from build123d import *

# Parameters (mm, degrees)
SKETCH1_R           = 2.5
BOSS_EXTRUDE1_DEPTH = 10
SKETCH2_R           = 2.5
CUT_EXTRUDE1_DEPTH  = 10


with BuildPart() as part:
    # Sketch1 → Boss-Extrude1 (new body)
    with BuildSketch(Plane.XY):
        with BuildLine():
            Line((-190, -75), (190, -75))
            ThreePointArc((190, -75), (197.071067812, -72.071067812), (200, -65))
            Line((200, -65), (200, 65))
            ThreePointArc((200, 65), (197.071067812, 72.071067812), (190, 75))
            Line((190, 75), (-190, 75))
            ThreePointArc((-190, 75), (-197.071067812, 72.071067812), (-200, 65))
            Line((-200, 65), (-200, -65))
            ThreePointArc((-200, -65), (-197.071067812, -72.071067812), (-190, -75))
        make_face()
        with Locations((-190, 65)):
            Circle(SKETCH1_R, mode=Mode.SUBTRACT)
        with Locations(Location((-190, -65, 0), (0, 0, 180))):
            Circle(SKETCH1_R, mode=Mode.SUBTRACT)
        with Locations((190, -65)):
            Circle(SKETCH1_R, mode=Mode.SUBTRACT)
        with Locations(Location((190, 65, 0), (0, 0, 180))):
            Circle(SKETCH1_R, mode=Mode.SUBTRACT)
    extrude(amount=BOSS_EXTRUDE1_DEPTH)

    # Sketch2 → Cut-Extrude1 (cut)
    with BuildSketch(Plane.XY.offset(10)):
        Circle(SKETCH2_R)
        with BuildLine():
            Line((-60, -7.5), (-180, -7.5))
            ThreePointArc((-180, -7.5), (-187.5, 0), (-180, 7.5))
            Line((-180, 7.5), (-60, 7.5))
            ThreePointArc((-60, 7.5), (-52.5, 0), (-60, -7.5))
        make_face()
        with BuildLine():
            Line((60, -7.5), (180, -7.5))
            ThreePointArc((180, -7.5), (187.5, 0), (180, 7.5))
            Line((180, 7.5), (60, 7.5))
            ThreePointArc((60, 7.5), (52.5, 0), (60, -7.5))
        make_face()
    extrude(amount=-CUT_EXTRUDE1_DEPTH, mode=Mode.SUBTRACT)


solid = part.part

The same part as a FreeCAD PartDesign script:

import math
import FreeCAD as App
import Part
import Sketcher
Q = App.Units.Quantity

doc = App.newDocument("Part")
params = doc.addObject("Spreadsheet::Sheet", "Params")
for row, (alias, value) in enumerate([
    ("sketch1_diameter", "5 mm"),
    ("sketch1_radius", "10 mm"),
    ("sketch1_width", "380 mm"),
    ("sketch1_height", "130 mm"),
    ("pad1_length", "10 mm"),
    ("sketch2_diameter", "5 mm"),
    ("sketch2_radius", "7.5 mm"),
    ("sketch2_width", "120 mm"),
    ("pocket1_length", "10 mm"),
], start=1):
    params.set(f"A{row}", alias)
    params.set(f"B{row}", "=" + value)
    params.setAlias(f"B{row}", alias)

body = doc.addObject("PartDesign::Body", "Body")

# Sketch on XY plane
sketch1 = body.newObject("Sketcher::SketchObject", "Sketch")
sketch1.AttachmentSupport = (doc.getObject("XY_Plane"), [""])
sketch1.MapMode = "FlatFace"
sketch1.addGeometry([
    Part.LineSegment(App.Vector(-190, -75, 0), App.Vector(190, -75, 0)),  # 0
    Part.ArcOfCircle(Part.Circle(App.Vector(190, -65, 0), App.Vector(0, 0, 1), 10), math.radians(-90), math.radians(0)),  # 1
    Part.LineSegment(App.Vector(200, -65, 0), App.Vector(200, 65, 0)),  # 2
    Part.ArcOfCircle(Part.Circle(App.Vector(190, 65, 0), App.Vector(0, 0, 1), 10), math.radians(0), math.radians(90)),  # 3
    Part.LineSegment(App.Vector(190, 75, 0), App.Vector(-190, 75, 0)),  # 4
    Part.ArcOfCircle(Part.Circle(App.Vector(-190, 65, 0), App.Vector(0, 0, 1), 10), math.radians(90), math.radians(180)),  # 5
    Part.LineSegment(App.Vector(-200, 65, 0), App.Vector(-200, -65, 0)),  # 6
    Part.ArcOfCircle(Part.Circle(App.Vector(-190, -65, 0), App.Vector(0, 0, 1), 10), math.radians(180), math.radians(270)),  # 7
    Part.Circle(App.Vector(-190, -65, 0), App.Vector(0, 0, 1), 2.5),  # 8
    Part.Circle(App.Vector(190, -65, 0), App.Vector(0, 0, 1), 2.5),  # 9
    Part.Circle(App.Vector(-190, 65, 0), App.Vector(0, 0, 1), 2.5),  # 10
    Part.Circle(App.Vector(190, 65, 0), App.Vector(0, 0, 1), 2.5),  # 11
], False)
sketch1.addConstraint([
    Sketcher.Constraint("Tangent", 0, 2, 1, 1),
    Sketcher.Constraint("Tangent", 1, 2, 2, 1),
    Sketcher.Constraint("Tangent", 2, 2, 3, 1),
    Sketcher.Constraint("Tangent", 3, 2, 4, 1),
    Sketcher.Constraint("Tangent", 4, 2, 5, 1),
    Sketcher.Constraint("Tangent", 5, 2, 6, 1),
    Sketcher.Constraint("Tangent", 6, 2, 7, 1),
    Sketcher.Constraint("Tangent", 7, 2, 0, 1),
    Sketcher.Constraint("Horizontal", 0),
    Sketcher.Constraint("Vertical", 2),
    Sketcher.Constraint("Horizontal", 4),
    Sketcher.Constraint("Vertical", 6),
    Sketcher.Constraint("Coincident", 8, 3, 7, 3),
    Sketcher.Constraint("Coincident", 9, 3, 1, 3),
    Sketcher.Constraint("Coincident", 10, 3, 5, 3),
    Sketcher.Constraint("Coincident", 11, 3, 3, 3),
    Sketcher.Constraint("Equal", 1, 3),
    Sketcher.Constraint("Equal", 3, 5),
    Sketcher.Constraint("Equal", 5, 7),
    Sketcher.Constraint("Equal", 8, 9),
    Sketcher.Constraint("Equal", 9, 10),
    Sketcher.Constraint("Equal", 10, 11),
    Sketcher.Constraint("Symmetric", 1, 3, 5, 3, -1, 1),
    Sketcher.Constraint("Diameter", 8, Q("5 mm")),
    Sketcher.Constraint("Radius", 1, Q("10 mm")),
    Sketcher.Constraint("DistanceX", 0, 1, 0, 2, Q("380 mm")),
    Sketcher.Constraint("DistanceY", 2, 1, 2, 2, Q("130 mm")),
])
sketch1.setExpression("Constraints[23]", "Params.sketch1_diameter")
sketch1.setExpression("Constraints[24]", "Params.sketch1_radius")
sketch1.setExpression("Constraints[25]", "Params.sketch1_width")
sketch1.setExpression("Constraints[26]", "Params.sketch1_height")
pad1 = body.newObject("PartDesign::Pad", "Pad")
pad1.Profile = sketch1
pad1.setExpression("Length", "Params.pad1_length")

# Sketch on XY plane
sketch2 = body.newObject("Sketcher::SketchObject", "Sketch001")
sketch2.AttachmentSupport = (doc.getObject("XY_Plane"), [""])
sketch2.MapMode = "FlatFace"
sketch2.AttachmentOffset = App.Placement(App.Vector(0, 0, 10), App.Rotation())
sketch2.addGeometry([
    Part.Circle(App.Vector(0, 0, 0), App.Vector(0, 0, 1), 2.5),  # 0
    Part.LineSegment(App.Vector(-180, -7.5, 0), App.Vector(-60, -7.5, 0)),  # 1
    Part.ArcOfCircle(Part.Circle(App.Vector(-60, 0, 0), App.Vector(0, 0, 1), 7.5), math.radians(-90), math.radians(90)),  # 2
    Part.LineSegment(App.Vector(-60, 7.5, 0), App.Vector(-180, 7.5, 0)),  # 3
    Part.ArcOfCircle(Part.Circle(App.Vector(-180, 0, 0), App.Vector(0, 0, 1), 7.5), math.radians(90), math.radians(270)),  # 4
    Part.LineSegment(App.Vector(60, -7.5, 0), App.Vector(180, -7.5, 0)),  # 5
    Part.ArcOfCircle(Part.Circle(App.Vector(180, 0, 0), App.Vector(0, 0, 1), 7.5), math.radians(-90), math.radians(90)),  # 6
    Part.LineSegment(App.Vector(180, 7.5, 0), App.Vector(60, 7.5, 0)),  # 7
    Part.ArcOfCircle(Part.Circle(App.Vector(60, 0, 0), App.Vector(0, 0, 1), 7.5), math.radians(90), math.radians(270)),  # 8
], False)
sketch2.addConstraint([
    Sketcher.Constraint("Tangent", 1, 2, 2, 1),
    Sketcher.Constraint("Tangent", 2, 2, 3, 1),
    Sketcher.Constraint("Tangent", 3, 2, 4, 1),
    Sketcher.Constraint("Tangent", 4, 2, 1, 1),
    Sketcher.Constraint("Tangent", 5, 2, 6, 1),
    Sketcher.Constraint("Tangent", 6, 2, 7, 1),
    Sketcher.Constraint("Tangent", 7, 2, 8, 1),
    Sketcher.Constraint("Tangent", 8, 2, 5, 1),
    Sketcher.Constraint("Horizontal", 1),
    Sketcher.Constraint("Horizontal", 3),
    Sketcher.Constraint("Horizontal", 5),
    Sketcher.Constraint("Horizontal", 7),
    Sketcher.Constraint("Coincident", 0, 3, -1, 1),
    Sketcher.Constraint("Equal", 4, 6),
    Sketcher.Constraint("Symmetric", 4, 3, 6, 3, -1, 1),
    Sketcher.Constraint("Symmetric", 2, 3, 8, 3, -2),
    Sketcher.Constraint("Diameter", 0, Q("5 mm")),
    Sketcher.Constraint("Radius", 2, Q("7.5 mm")),
    Sketcher.Constraint("DistanceX", 1, 1, 1, 2, Q("120 mm")),
    Sketcher.Constraint("DistanceX", 2, 3, -1, 1, Q("60 mm")),
])
sketch2.setExpression("Constraints[16]", "Params.sketch2_diameter")
sketch2.setExpression("Constraints[17]", "Params.sketch2_radius")
sketch2.setExpression("Constraints[18]", "Params.sketch2_width")
pocket1 = body.newObject("PartDesign::Pocket", "Pocket")
pocket1.Profile = sketch2
pocket1.setExpression("Length", "Params.pocket1_length")

doc.recompute()
